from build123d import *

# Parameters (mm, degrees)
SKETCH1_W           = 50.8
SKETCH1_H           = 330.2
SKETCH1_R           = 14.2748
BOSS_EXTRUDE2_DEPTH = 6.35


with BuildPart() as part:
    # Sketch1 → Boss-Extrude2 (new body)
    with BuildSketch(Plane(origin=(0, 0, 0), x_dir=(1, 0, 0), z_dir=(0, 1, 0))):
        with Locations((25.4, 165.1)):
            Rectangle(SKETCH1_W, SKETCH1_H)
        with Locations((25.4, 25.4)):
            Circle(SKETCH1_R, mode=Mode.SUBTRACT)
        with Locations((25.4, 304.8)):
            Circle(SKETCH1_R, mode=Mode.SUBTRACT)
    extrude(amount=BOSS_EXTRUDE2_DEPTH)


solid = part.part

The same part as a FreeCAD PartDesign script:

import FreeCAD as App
import Part
import Sketcher

V = App.Vector
Q = App.Units.Quantity


def add_polygon(sketch, points):
    """Adds a closed chain of lines whose ends are joined by coincident constraints."""
    first, n = sketch.GeometryCount, len(points)
    for a, b in zip(points, points[1:] + points[:1]):
        sketch.addGeometry(Part.LineSegment(App.Vector(*a, 0), App.Vector(*b, 0)), False)
    for i in range(n):
        sketch.addConstraint(Sketcher.Constraint("Coincident", first + i, 2, first + (i + 1) % n, 1))

doc = App.newDocument("Part")
params = doc.addObject("Spreadsheet::Sheet", "Params")
for row, (alias, value) in enumerate([
    ("sketch1_width", "2 in"),
    ("sketch1_height", "13 in"),
    ("sketch1_diameter", "1.124 in"),
    ("pad1_length", "0.25 in"),
], start=1):
    params.set(f"A{row}", alias)
    params.set(f"B{row}", "=" + value)
    params.setAlias(f"B{row}", alias)

body = doc.addObject("PartDesign::Body", "Body")

# Sketch on XZ plane
sketch1 = body.newObject("Sketcher::SketchObject", "Sketch")
sketch1.AttachmentSupport = (doc.getObject("XZ_Plane"), [""])
sketch1.MapMode = "FlatFace"
add_polygon(sketch1, [(0, -330), (0, 0), (51, 0), (51, -330)])  # lines 0-3
sketch1.addGeometry(Part.Circle(V(25, -25, 0), V(0, 0, 1), 14), False)  # 4
sketch1.addGeometry(Part.Circle(V(25, -305, 0), V(0, 0, 1), 14), False)  # 5
sketch1.addConstraint([
    Sketcher.Constraint("Vertical", 0),
    Sketcher.Constraint("Horizontal", 1),
    Sketcher.Constraint("Vertical", 2),
    Sketcher.Constraint("Horizontal", 3),
    Sketcher.Constraint("Coincident", 0, 2, -1, 1),
    Sketcher.Constraint("Equal", 4, 5),
    Sketcher.Constraint("Vertical", 4, 3, 5, 3),
    Sketcher.Constraint("DistanceX", 1, 1, 1, 2, Q("2 in")),
    Sketcher.Constraint("DistanceY", 0, 1, 0, 2, Q("13 in")),
    Sketcher.Constraint("Diameter", 4, Q("1.124 in")),
    Sketcher.Constraint("DistanceX", -1, 1, 4, 3, Q("1 in")),
    Sketcher.Constraint("DistanceY", 4, 3, -1, 1, Q("1 in")),
    Sketcher.Constraint("DistanceY", 5, 3, -1, 1, Q("12 in")),
])
sketch1.setExpression("Constraints[11]", "Params.sketch1_width")
sketch1.setExpression("Constraints[12]", "Params.sketch1_height")
sketch1.setExpression("Constraints[13]", "Params.sketch1_diameter")
pad1 = body.newObject("PartDesign::Pad", "Pad")
pad1.Profile = sketch1
pad1.setExpression("Length", "Params.pad1_length")
pad1.Reversed = True

doc.recompute()
